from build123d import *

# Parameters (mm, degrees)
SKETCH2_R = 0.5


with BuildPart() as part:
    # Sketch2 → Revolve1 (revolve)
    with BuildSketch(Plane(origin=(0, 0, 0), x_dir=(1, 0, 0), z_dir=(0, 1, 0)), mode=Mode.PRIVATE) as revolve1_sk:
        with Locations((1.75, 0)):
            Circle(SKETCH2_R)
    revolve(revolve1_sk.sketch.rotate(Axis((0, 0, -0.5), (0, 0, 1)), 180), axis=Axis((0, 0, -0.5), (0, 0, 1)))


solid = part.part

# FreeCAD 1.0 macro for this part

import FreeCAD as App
import Part
import Sketcher
Q = App.Units.Quantity

doc = App.newDocument("Part")
body = doc.addObject("PartDesign::Body", "Body")

# Sketch on XZ plane
sketch1 = doc.addObject("Sketcher::SketchObject", "Sketch")
body.addObject(sketch1)
sketch1.AttachmentSupport = (doc.XZ_Plane, [""])
sketch1.MapMode = "FlatFace"
sketch1.addGeometry(Part.Circle(App.Vector(1.75, 0, 0), App.Vector(0, 0, 1), 0.5), False)
sketch1.addConstraint(Sketcher.Constraint("PointOnObject", 0, 3, -1))
sketch1.addConstraint(Sketcher.Constraint("Diameter", 0, Q("1 mm")))
sketch1.addConstraint(Sketcher.Constraint("DistanceX", -1, 1, 0, 3, Q("1.75 mm")))
revolution = doc.addObject("PartDesign::Revolution", "Revolution")
body.addObject(revolution)
revolution.Profile = sketch1
revolution.ReferenceAxis = (sketch1, ["V_Axis"])
revolution.Angle = 360

doc.recompute()
